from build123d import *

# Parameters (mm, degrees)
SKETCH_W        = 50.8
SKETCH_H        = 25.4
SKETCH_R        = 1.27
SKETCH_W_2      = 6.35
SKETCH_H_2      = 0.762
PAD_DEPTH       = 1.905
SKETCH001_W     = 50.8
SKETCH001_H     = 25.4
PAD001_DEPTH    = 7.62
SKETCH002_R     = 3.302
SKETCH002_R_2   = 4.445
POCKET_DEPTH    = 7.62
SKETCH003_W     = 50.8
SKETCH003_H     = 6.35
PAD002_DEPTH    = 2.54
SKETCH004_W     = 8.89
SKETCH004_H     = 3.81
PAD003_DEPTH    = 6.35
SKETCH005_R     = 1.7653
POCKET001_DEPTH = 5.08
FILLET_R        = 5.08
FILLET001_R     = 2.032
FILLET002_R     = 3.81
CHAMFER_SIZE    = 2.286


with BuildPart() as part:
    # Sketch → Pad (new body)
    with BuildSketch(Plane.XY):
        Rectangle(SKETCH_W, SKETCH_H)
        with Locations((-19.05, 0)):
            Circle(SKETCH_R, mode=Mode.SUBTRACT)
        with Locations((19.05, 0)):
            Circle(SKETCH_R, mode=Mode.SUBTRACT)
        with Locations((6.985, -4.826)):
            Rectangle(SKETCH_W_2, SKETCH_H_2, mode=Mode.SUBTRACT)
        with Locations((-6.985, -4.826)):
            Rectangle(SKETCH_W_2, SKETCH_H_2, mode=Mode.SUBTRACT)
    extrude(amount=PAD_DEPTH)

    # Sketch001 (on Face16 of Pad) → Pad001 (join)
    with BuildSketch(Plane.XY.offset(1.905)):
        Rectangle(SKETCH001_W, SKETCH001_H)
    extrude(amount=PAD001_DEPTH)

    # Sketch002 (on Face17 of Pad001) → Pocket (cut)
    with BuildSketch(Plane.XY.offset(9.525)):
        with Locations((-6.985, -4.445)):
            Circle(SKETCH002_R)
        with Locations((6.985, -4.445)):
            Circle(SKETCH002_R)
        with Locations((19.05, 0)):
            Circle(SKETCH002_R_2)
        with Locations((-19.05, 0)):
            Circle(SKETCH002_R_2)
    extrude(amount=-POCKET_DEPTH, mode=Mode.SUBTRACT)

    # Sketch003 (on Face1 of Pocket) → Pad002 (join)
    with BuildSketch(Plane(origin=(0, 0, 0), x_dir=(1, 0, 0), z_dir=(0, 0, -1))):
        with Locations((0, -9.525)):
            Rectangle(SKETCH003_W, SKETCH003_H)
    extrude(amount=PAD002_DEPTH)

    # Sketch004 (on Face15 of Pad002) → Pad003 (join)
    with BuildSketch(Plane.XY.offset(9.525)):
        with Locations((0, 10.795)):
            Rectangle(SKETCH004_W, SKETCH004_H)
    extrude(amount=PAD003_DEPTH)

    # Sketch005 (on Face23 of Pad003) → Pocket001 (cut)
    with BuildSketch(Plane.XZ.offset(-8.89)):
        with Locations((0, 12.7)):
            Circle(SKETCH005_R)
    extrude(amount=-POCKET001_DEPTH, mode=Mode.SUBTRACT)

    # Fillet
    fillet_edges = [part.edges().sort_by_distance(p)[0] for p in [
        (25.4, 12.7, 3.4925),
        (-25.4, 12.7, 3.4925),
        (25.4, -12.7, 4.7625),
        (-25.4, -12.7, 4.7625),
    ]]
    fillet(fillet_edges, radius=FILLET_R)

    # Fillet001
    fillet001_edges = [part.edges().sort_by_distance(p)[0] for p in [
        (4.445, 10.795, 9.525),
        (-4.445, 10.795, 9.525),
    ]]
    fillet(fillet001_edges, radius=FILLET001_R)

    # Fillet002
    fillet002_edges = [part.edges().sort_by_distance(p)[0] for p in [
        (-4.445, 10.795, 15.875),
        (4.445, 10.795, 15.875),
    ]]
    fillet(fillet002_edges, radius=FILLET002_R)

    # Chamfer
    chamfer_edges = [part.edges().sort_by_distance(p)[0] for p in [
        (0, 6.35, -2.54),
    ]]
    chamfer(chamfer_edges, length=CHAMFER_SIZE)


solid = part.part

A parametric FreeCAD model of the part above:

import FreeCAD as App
import Part
import Sketcher
Q = App.Units.Quantity


def edges_at(feature, points):
    """Names of the edges that pass closest to the given points."""
    edges = feature.Shape.Edges
    near = lambda p: min(range(len(edges)), key=lambda i: edges[i].distToShape(Part.Vertex(*p))[0])
    return sorted({f"Edge{near(p) + 1}" for p in points})

doc = App.newDocument("Part")
params = doc.addObject("Spreadsheet::Sheet", "Params")
for row, (alias, value) in enumerate([
    ("sketch1_diameter", "0.1 in"),
    ("sketch1_width", "2 in"),
    ("sketch1_height", "1 in"),
    ("sketch1_width2", "0.25 in"),
    ("sketch1_height2", "0.03 in"),
    ("pad1_length", "0.075 in"),
    ("sketch2_width", "2 in"),
    ("sketch2_height", "1 in"),
    ("pad2_length", "0.3 in"),
    ("sketch3_diameter", "0.26 in"),
    ("sketch3_diameter2", "0.35 in"),
    ("pocket1_length", "0.3 in"),
    ("sketch4_width", "2 in"),
    ("sketch4_height", "0.25 in"),
    ("pad3_length", "0.1 in"),
    ("sketch5_width", "0.35 in"),
    ("sketch5_height", "0.15 in"),
    ("pad4_length", "0.25 in"),
    ("sketch6_diameter", "0.139 in"),
    ("pocket2_length", "0.2 in"),
    ("fillet_radius", "0.2 in"),
    ("fillet2_radius", "0.08 in"),
    ("fillet3_radius", "0.15 in"),
    ("chamfer_size", "0.09 in"),
], start=1):
    params.set(f"A{row}", alias)
    params.set(f"B{row}", "=" + value)
    params.setAlias(f"B{row}", alias)

body = doc.addObject("PartDesign::Body", "Body")

sketch1 = body.newObject("Sketcher::SketchObject", "Sketch")
sketch1.AttachmentSupport = (doc.getObject("XY_Plane"), [""])
sketch1.MapMode = "FlatFace"
sketch1.addGeometry([
    Part.LineSegment(App.Vector(-25.4, 12.7, 0), App.Vector(-25.4, -12.7, 0)),
    Part.LineSegment(App.Vector(-25.4, -12.7, 0), App.Vector(25.4, -12.7, 0)),
    Part.LineSegment(App.Vector(25.4, -12.7, 0), App.Vector(25.4, 12.7, 0)),
    Part.LineSegment(App.Vector(25.4, 12.7, 0), App.Vector(-25.4, 12.7, 0)),
    Part.LineSegment(App.Vector(-3.81, -5.207, 0), App.Vector(-10.16, -5.207, 0)),
    Part.LineSegment(App.Vector(-10.16, -5.207, 0), App.Vector(-10.16, -4.445, 0)),
    Part.LineSegment(App.Vector(-10.16, -4.445, 0), App.Vector(-3.81, -4.445, 0)),
    Part.LineSegment(App.Vector(-3.81, -4.445, 0), App.Vector(-3.81, -5.207, 0)),
    Part.LineSegment(App.Vector(10.16, -5.207, 0), App.Vector(3.81, -5.207, 0)),
    Part.LineSegment(App.Vector(3.81, -5.207, 0), App.Vector(3.81, -4.445, 0)),
    Part.LineSegment(App.Vector(3.81, -4.445, 0), App.Vector(10.16, -4.445, 0)),
    Part.LineSegment(App.Vector(10.16, -4.445, 0), App.Vector(10.16, -5.207, 0)),
    Part.Circle(App.Vector(-19.05, 0, 0), App.Vector(0, 0, 1), 1.27),
    Part.Circle(App.Vector(19.05, 0, 0), App.Vector(0, 0, 1), 1.27),
], False)
sketch1.addConstraint([
    Sketcher.Constraint("Coincident", 0, 2, 1, 1),
    Sketcher.Constraint("Coincident", 1, 2, 2, 1),
    Sketcher.Constraint("Coincident", 2, 2, 3, 1),
    Sketcher.Constraint("Coincident", 3, 2, 0, 1),
    Sketcher.Constraint("Coincident", 4, 2, 5, 1),
    Sketcher.Constraint("Coincident", 5, 2, 6, 1),
    Sketcher.Constraint("Coincident", 6, 2, 7, 1),
    Sketcher.Constraint("Coincident", 7, 2, 4, 1),
    Sketcher.Constraint("Coincident", 8, 2, 9, 1),
    Sketcher.Constraint("Coincident", 9, 2, 10, 1),
    Sketcher.Constraint("Coincident", 10, 2, 11, 1),
    Sketcher.Constraint("Coincident", 11, 2, 8, 1),
    Sketcher.Constraint("Vertical", 0),
    Sketcher.Constraint("Horizontal", 1),
    Sketcher.Constraint("Vertical", 2),
    Sketcher.Constraint("Horizontal", 3),
    Sketcher.Constraint("Horizontal", 4),
    Sketcher.Constraint("Vertical", 5),
    Sketcher.Constraint("Horizontal", 6),
    Sketcher.Constraint("Vertical", 7),
    Sketcher.Constraint("Horizontal", 8),
    Sketcher.Constraint("Vertical", 9),
    Sketcher.Constraint("Horizontal", 10),
    Sketcher.Constraint("Vertical", 11),
    Sketcher.Constraint("Equal", 12, 13),
    Sketcher.Constraint("Symmetric", 12, 3, 13, 3, -1, 1),
    Sketcher.Constraint("Symmetric", 0, 2, 2, 2, -1, 1),
    Sketcher.Constraint("Symmetric", 7, 2, 8, 2, -2),
    Sketcher.Constraint("Symmetric", 5, 2, 10, 2, -2),
    Sketcher.Constraint("PointOnObject", 12, 3, -1),
    Sketcher.Constraint("Diameter", 12, Q("0.1 in")),
    Sketcher.Constraint("DistanceX", 1, 1, 1, 2, Q("2 in")),
    Sketcher.Constraint("DistanceY", 0, 2, 0, 1, Q("1 in")),
    Sketcher.Constraint("DistanceX", 4, 2, 4, 1, Q("0.25 in")),
    Sketcher.Constraint("DistanceY", 5, 1, 5, 2, Q("0.03 in")),
    Sketcher.Constraint("DistanceX", 4, 2, -1, 1, Q("0.4 in")),
    Sketcher.Constraint("DistanceX", 12, 3, 13, 3, Q("1.5 in")),
    Sketcher.Constraint("DistanceY", 4, 2, -1, 1, Q("0.205 in")),
])
sketch1.setExpression("Constraints[30]", "Params.sketch1_diameter")
sketch1.setExpression("Constraints[31]", "Params.sketch1_width")
sketch1.setExpression("Constraints[32]", "Params.sketch1_height")
sketch1.setExpression("Constraints[33]", "Params.sketch1_width2")
sketch1.setExpression("Constraints[34]", "Params.sketch1_height2")
pad1 = body.newObject("PartDesign::Pad", "Pad")
pad1.Profile = sketch1
pad1.setExpression("Length", "Params.pad1_length")

sketch2 = body.newObject("Sketcher::SketchObject", "Sketch001")
sketch2.AttachmentSupport = (doc.getObject("XY_Plane"), [""])
sketch2.MapMode = "FlatFace"
sketch2.AttachmentOffset = App.Placement(App.Vector(0, 0, 0.075 * 25.4), App.Rotation())
sketch2.addGeometry([
    Part.LineSegment(App.Vector(-25.4, 12.7, 0), App.Vector(-25.4, -12.7, 0)),
    Part.LineSegment(App.Vector(-25.4, -12.7, 0), App.Vector(25.4, -12.7, 0)),
    Part.LineSegment(App.Vector(25.4, -12.7, 0), App.Vector(25.4, 12.7, 0)),
    Part.LineSegment(App.Vector(25.4, 12.7, 0), App.Vector(-25.4, 12.7, 0)),
], False)
sketch2.addConstraint([
    Sketcher.Constraint("Coincident", 0, 2, 1, 1),
    Sketcher.Constraint("Coincident", 1, 2, 2, 1),
    Sketcher.Constraint("Coincident", 2, 2, 3, 1),
    Sketcher.Constraint("Coincident", 3, 2, 0, 1),
    Sketcher.Constraint("Vertical", 0),
    Sketcher.Constraint("Horizontal", 1),
    Sketcher.Constraint("Vertical", 2),
    Sketcher.Constraint("Horizontal", 3),
    Sketcher.Constraint("Symmetric", 0, 2, 2, 2, -1, 1),
    Sketcher.Constraint("DistanceX", 1, 1, 1, 2, Q("2 in")),
    Sketcher.Constraint("DistanceY", 0, 2, 0, 1, Q("1 in")),
])
sketch2.setExpression("Constraints[9]", "Params.sketch2_width")
sketch2.setExpression("Constraints[10]", "Params.sketch2_height")
pad2 = body.newObject("PartDesign::Pad", "Pad001")
pad2.Profile = sketch2
pad2.setExpression("Length", "Params.pad2_length")

sketch3 = body.newObject("Sketcher::SketchObject", "Sketch002")
sketch3.AttachmentSupport = (doc.getObject("XY_Plane"), [""])
sketch3.MapMode = "FlatFace"
sketch3.AttachmentOffset = App.Placement(App.Vector(0, 0, 0.375 * 25.4), App.Rotation())
sketch3.addGeometry([
    Part.Circle(App.Vector(-6.985, -4.445, 0), App.Vector(0, 0, 1), 3.302),
    Part.Circle(App.Vector(6.985, -4.445, 0), App.Vector(0, 0, 1), 3.302),
    Part.Circle(App.Vector(19.05, 0, 0), App.Vector(0, 0, 1), 4.445),
    Part.Circle(App.Vector(-19.05, 0, 0), App.Vector(0, 0, 1), 4.445),
], False)
sketch3.addConstraint([
    Sketcher.Constraint("Equal", 0, 1),
    Sketcher.Constraint("Equal", 2, 3),
    Sketcher.Constraint("Symmetric", 2, 3, 3, 3, -1, 1),
    Sketcher.Constraint("Symmetric", 0, 3, 1, 3, -2),
    Sketcher.Constraint("PointOnObject", 2, 3, -1),
    Sketcher.Constraint("Diameter", 0, Q("0.26 in")),
    Sketcher.Constraint("Diameter", 2, Q("0.35 in")),
    Sketcher.Constraint("DistanceX", 3, 3, 2, 3, Q("1.5 in")),
    Sketcher.Constraint("DistanceX", 0, 3, 1, 3, Q("0.55 in")),
    Sketcher.Constraint("DistanceY", 0, 3, -1, 1, Q("0.175 in")),
])
sketch3.setExpression("Constraints[5]", "Params.sketch3_diameter")
sketch3.setExpression("Constraints[6]", "Params.sketch3_diameter2")
pocket1 = body.newObject("PartDesign::Pocket", "Pocket")
pocket1.Profile = sketch3
pocket1.setExpression("Length", "Params.pocket1_length")

sketch4 = body.newObject("Sketcher::SketchObject", "Sketch003")
sketch4.AttachmentSupport = (doc.getObject("XY_Plane"), [""])
sketch4.MapMode = "FlatFace"
sketch4.addGeometry([
    Part.LineSegment(App.Vector(-25.4, 6.35, 0), App.Vector(-25.4, 12.7, 0)),
    Part.LineSegment(App.Vector(-25.4, 12.7, 0), App.Vector(25.4, 12.7, 0)),
    Part.LineSegment(App.Vector(25.4, 12.7, 0), App.Vector(25.4, 6.35, 0)),
    Part.LineSegment(App.Vector(25.4, 6.35, 0), App.Vector(-25.4, 6.35, 0)),
], False)
sketch4.addConstraint([
    Sketcher.Constraint("Coincident", 0, 2, 1, 1),
    Sketcher.Constraint("Coincident", 1, 2, 2, 1),
    Sketcher.Constraint("Coincident", 2, 2, 3, 1),
    Sketcher.Constraint("Coincident", 3, 2, 0, 1),
    Sketcher.Constraint("Vertical", 0),
    Sketcher.Constraint("Horizontal", 1),
    Sketcher.Constraint("Vertical", 2),
    Sketcher.Constraint("Horizontal", 3),
    Sketcher.Constraint("DistanceX", 1, 1, 1, 2, Q("2 in")),
    Sketcher.Constraint("DistanceX", 0, 2, -1, 1, Q("1 in")),
    Sketcher.Constraint("DistanceY", 0, 1, 0, 2, Q("0.25 in")),
    Sketcher.Constraint("DistanceY", -1, 1, 0, 2, Q("0.5 in")),
])
sketch4.setExpression("Constraints[8]", "Params.sketch4_width")
sketch4.setExpression("Constraints[10]", "Params.sketch4_height")
pad3 = body.newObject("PartDesign::Pad", "Pad002")
pad3.Profile = sketch4
pad3.setExpression("Length", "Params.pad3_length")
pad3.Reversed = True

sketch5 = body.newObject("Sketcher::SketchObject", "Sketch004")
sketch5.AttachmentSupport = (doc.getObject("XY_Plane"), [""])
sketch5.MapMode = "FlatFace"
sketch5.AttachmentOffset = App.Placement(App.Vector(0, 0, 0.375 * 25.4), App.Rotation())
sketch5.addGeometry([
    Part.LineSegment(App.Vector(-4.445, 12.7, 0), App.Vector(-4.445, 8.89, 0)),
    Part.LineSegment(App.Vector(-4.445, 8.89, 0), App.Vector(4.445, 8.89, 0)),
    Part.LineSegment(App.Vector(4.445, 8.89, 0), App.Vector(4.445, 12.7, 0)),
    Part.LineSegment(App.Vector(4.445, 12.7, 0), App.Vector(-4.445, 12.7, 0)),
], False)
sketch5.addConstraint([
    Sketcher.Constraint("Coincident", 0, 2, 1, 1),
    Sketcher.Constraint("Coincident", 1, 2, 2, 1),
    Sketcher.Constraint("Coincident", 2, 2, 3, 1),
    Sketcher.Constraint("Coincident", 3, 2, 0, 1),
    Sketcher.Constraint("Vertical", 0),
    Sketcher.Constraint("Horizontal", 1),
    Sketcher.Constraint("Vertical", 2),
    Sketcher.Constraint("Horizontal", 3),
    Sketcher.Constraint("DistanceX", 1, 1, 1, 2, Q("0.35 in")),
    Sketcher.Constraint("DistanceY", 0, 2, 0, 1, Q("0.15 in")),
    Sketcher.Constraint("DistanceY", -1, 1, 2, 2, Q("0.5 in")),
    Sketcher.Constraint("DistanceX", 0, 2, -1, 1, Q("0.175 in")),
])
sketch5.setExpression("Constraints[8]", "Params.sketch5_width")
sketch5.setExpression("Constraints[9]", "Params.sketch5_height")
pad4 = body.newObject("PartDesign::Pad", "Pad003")
pad4.Profile = sketch5
pad4.setExpression("Length", "Params.pad4_length")

sketch6 = body.newObject("Sketcher::SketchObject", "Sketch005")
sketch6.AttachmentSupport = (doc.getObject("XZ_Plane"), [""])
sketch6.MapMode = "FlatFace"
sketch6.AttachmentOffset = App.Placement(App.Vector(0, 0, -0.35 * 25.4), App.Rotation())
sketch6.addGeometry(Part.Circle(App.Vector(0, 12.7, 0), App.Vector(0, 0, 1), 1.7653), False)
sketch6.addConstraint([
    Sketcher.Constraint("PointOnObject", 0, 3, -2),
    Sketcher.Constraint("Diameter", 0, Q("0.139 in")),
    Sketcher.Constraint("DistanceY", -1, 1, 0, 3, Q("0.5 in")),
])
sketch6.setExpression("Constraints[1]", "Params.sketch6_diameter")
pocket2 = body.newObject("PartDesign::Pocket", "Pocket001")
pocket2.Profile = sketch6
pocket2.setExpression("Length", "Params.pocket2_length")
doc.recompute()

fillet = body.newObject("PartDesign::Fillet", "Fillet")
fillet.Base = (pocket2, edges_at(pocket2, [
    (25.4, 12.7, 3.493),
    (-25.4, 12.7, 3.493),
    (25.4, -12.7, 4.763),
    (-25.4, -12.7, 4.763),
]))
fillet.setExpression("Radius", "Params.fillet_radius")
doc.recompute()

fillet2 = body.newObject("PartDesign::Fillet", "Fillet001")
fillet2.Base = (fillet, edges_at(fillet, [(4.445, 10.795, 9.525), (-4.445, 10.795, 9.525)]))
fillet2.setExpression("Radius", "Params.fillet2_radius")
doc.recompute()

fillet3 = body.newObject("PartDesign::Fillet", "Fillet002")
fillet3.Base = (fillet2, edges_at(fillet2, [(-4.445, 10.795, 15.875), (4.445, 10.795, 15.875)]))
fillet3.setExpression("Radius", "Params.fillet3_radius")
doc.recompute()

chamfer = body.newObject("PartDesign::Chamfer", "Chamfer")
chamfer.Base = (fillet3, edges_at(fillet3, [(0, 6.35, -2.54)]))
chamfer.setExpression("Size", "Params.chamfer_size")

doc.recompute()
